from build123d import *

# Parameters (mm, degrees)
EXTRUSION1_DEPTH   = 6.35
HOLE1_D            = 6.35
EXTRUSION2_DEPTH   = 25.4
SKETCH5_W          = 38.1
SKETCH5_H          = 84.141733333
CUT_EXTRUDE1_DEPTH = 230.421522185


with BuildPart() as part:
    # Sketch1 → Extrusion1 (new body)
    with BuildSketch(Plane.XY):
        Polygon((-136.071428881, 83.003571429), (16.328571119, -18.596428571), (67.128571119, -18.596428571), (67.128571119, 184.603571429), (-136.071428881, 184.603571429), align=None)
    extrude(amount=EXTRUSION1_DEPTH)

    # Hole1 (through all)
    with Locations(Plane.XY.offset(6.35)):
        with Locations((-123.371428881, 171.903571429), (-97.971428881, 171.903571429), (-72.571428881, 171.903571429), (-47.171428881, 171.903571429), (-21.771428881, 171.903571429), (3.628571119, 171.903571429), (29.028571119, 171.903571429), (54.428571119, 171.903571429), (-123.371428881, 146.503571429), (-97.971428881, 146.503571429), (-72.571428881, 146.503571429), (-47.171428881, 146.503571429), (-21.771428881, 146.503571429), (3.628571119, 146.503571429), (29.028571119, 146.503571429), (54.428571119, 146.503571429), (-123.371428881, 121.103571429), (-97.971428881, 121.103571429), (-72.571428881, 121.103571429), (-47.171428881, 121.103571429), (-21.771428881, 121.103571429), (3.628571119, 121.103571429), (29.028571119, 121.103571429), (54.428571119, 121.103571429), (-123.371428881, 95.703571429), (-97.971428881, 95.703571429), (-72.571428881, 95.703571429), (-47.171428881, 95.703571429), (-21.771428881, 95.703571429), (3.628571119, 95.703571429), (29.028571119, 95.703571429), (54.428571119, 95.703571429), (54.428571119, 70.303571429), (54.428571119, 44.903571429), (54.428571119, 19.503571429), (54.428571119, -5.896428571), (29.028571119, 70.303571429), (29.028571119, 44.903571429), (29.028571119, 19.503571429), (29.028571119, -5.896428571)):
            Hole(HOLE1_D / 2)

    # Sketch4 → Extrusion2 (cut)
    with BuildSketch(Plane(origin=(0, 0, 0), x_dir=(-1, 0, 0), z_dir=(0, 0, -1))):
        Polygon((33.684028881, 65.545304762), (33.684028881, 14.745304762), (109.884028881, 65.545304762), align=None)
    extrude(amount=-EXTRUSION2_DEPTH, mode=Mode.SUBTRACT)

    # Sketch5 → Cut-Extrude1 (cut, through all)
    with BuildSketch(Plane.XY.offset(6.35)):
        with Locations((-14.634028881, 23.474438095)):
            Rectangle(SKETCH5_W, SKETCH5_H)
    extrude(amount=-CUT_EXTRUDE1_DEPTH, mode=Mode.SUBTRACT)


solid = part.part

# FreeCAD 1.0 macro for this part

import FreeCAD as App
import Part
import Sketcher
Q = App.Units.Quantity


def add_polygon(sketch, points):
    """Adds a closed chain of lines whose ends are joined by coincident constraints."""
    first, n = sketch.GeometryCount, len(points)
    for a, b in zip(points, points[1:] + points[:1]):
        sketch.addGeometry(Part.LineSegment(App.Vector(*a, 0), App.Vector(*b, 0)), False)
    for i in range(n):
        sketch.addConstraint(Sketcher.Constraint("Coincident", first + i, 2, first + (i + 1) % n, 1))

doc = App.newDocument("Part")
params = doc.addObject("Spreadsheet::Sheet", "Params")
for row, (alias, value) in enumerate([
    ("sketch1_width", "2 in"),
    ("sketch1_width2", "8 in"),
    ("sketch1_height", "4 in"),
    ("pad1_length", "0.25 in"),
    ("sketch2_diameter", "0.25 in"),
    ("hole_diameter", "0.25 in"),
    ("sketch3_width", "3 in"),
    ("sketch3_height", "2 in"),
    ("pocket1_length", "1 in"),
    ("sketch4_width", "1.5 in"),
], start=1):
    params.set(f"A{row}", alias)
    params.set(f"B{row}", "=" + value)
    params.setAlias(f"B{row}", alias)

body = doc.addObject("PartDesign::Body", "Body")

# Sketch on XY plane
sketch1 = body.newObject("Sketcher::SketchObject", "Sketch")
sketch1.AttachmentSupport = (doc.getObject("XY_Plane"), [""])
sketch1.MapMode = "FlatFace"
add_polygon(sketch1, [(-136, 83), (16, -19), (67, -19), (67, 185), (-136, 185)])  # lines 0-4
sketch1.addConstraint(Sketcher.Constraint("Horizontal", 1))
sketch1.addConstraint(Sketcher.Constraint("Vertical", 2))
sketch1.addConstraint(Sketcher.Constraint("Horizontal", 3))
sketch1.addConstraint(Sketcher.Constraint("Vertical", 4))
sketch1.addConstraint(Sketcher.Constraint("Equal", 3, 2))
sketch1.addConstraint(Sketcher.Constraint("DistanceX", 1, 1, 1, 2, Q("2 in")))
sketch1.addConstraint(Sketcher.Constraint("DistanceX", 3, 2, 3, 1, Q("8 in")))
sketch1.addConstraint(Sketcher.Constraint("DistanceY", 4, 2, 4, 1, Q("4 in")))
sketch1.addConstraint(Sketcher.Constraint("DistanceX", -1, 1, 0, 2, Q("16.328571 mm")))
sketch1.addConstraint(Sketcher.Constraint("DistanceY", 0, 2, -1, 1, Q("18.596429 mm")))
sketch1.setExpression("Constraints[10]", "Params.sketch1_width")
sketch1.setExpression("Constraints[11]", "Params.sketch1_width2")
sketch1.setExpression("Constraints[12]", "Params.sketch1_height")
pad1 = body.newObject("PartDesign::Pad", "Pad")
pad1.Profile = sketch1
pad1.setExpression("Length", "Params.pad1_length")

# Sketch on XY plane
sketch2 = body.newObject("Sketcher::SketchObject", "Sketch001")
sketch2.AttachmentSupport = (doc.getObject("XY_Plane"), [""])
sketch2.MapMode = "FlatFace"
sketch2.AttachmentOffset = App.Placement(App.Vector(0, 0, 0.25 * 25.4), App.Rotation())
sketch2.addGeometry(Part.Circle(App.Vector(-123.4, 171.9, 0), App.Vector(0, 0, 1), 3.2), False)
sketch2.addGeometry(Part.Circle(App.Vector(-98, 171.9, 0), App.Vector(0, 0, 1), 3.2), False)
sketch2.addGeometry(Part.Circle(App.Vector(-72.6, 171.9, 0), App.Vector(0, 0, 1), 3.2), False)
sketch2.addGeometry(Part.Circle(App.Vector(-47.2, 171.9, 0), App.Vector(0, 0, 1), 3.2), False)
sketch2.addGeometry(Part.Circle(App.Vector(-21.8, 171.9, 0), App.Vector(0, 0, 1), 3.2), False)
sketch2.addGeometry(Part.Circle(App.Vector(3.6, 171.9, 0), App.Vector(0, 0, 1), 3.2), False)
sketch2.addGeometry(Part.Circle(App.Vector(29, 171.9, 0), App.Vector(0, 0, 1), 3.2), False)
sketch2.addGeometry(Part.Circle(App.Vector(54.4, 171.9, 0), App.Vector(0, 0, 1), 3.2), False)
sketch2.addGeometry(Part.Circle(App.Vector(-123.4, 146.5, 0), App.Vector(0, 0, 1), 3.2), False)
sketch2.addGeometry(Part.Circle(App.Vector(-98, 146.5, 0), App.Vector(0, 0, 1), 3.2), False)
sketch2.addGeometry(Part.Circle(App.Vector(-72.6, 146.5, 0), App.Vector(0, 0, 1), 3.2), False)
sketch2.addGeometry(Part.Circle(App.Vector(-47.2, 146.5, 0), App.Vector(0, 0, 1), 3.2), False)
sketch2.addGeometry(Part.Circle(App.Vector(-21.8, 146.5, 0), App.Vector(0, 0, 1), 3.2), False)
sketch2.addGeometry(Part.Circle(App.Vector(3.6, 146.5, 0), App.Vector(0, 0, 1), 3.2), False)
sketch2.addGeometry(Part.Circle(App.Vector(29, 146.5, 0), App.Vector(0, 0, 1), 3.2), False)
sketch2.addGeometry(Part.Circle(App.Vector(54.4, 146.5, 0), App.Vector(0, 0, 1), 3.2), False)
sketch2.addGeometry(Part.Circle(App.Vector(-123.4, 121.1, 0), App.Vector(0, 0, 1), 3.2), False)
sketch2.addGeometry(Part.Circle(App.Vector(-98, 121.1, 0), App.Vector(0, 0, 1), 3.2), False)
sketch2.addGeometry(Part.Circle(App.Vector(-72.6, 121.1, 0), App.Vector(0, 0, 1), 3.2), False)
sketch2.addGeometry(Part.Circle(App.Vector(-47.2, 121.1, 0), App.Vector(0, 0, 1), 3.2), False)
sketch2.addGeometry(Part.Circle(App.Vector(-21.8, 121.1, 0), App.Vector(0, 0, 1), 3.2), False)
sketch2.addGeometry(Part.Circle(App.Vector(3.6, 121.1, 0), App.Vector(0, 0, 1), 3.2), False)
sketch2.addGeometry(Part.Circle(App.Vector(29, 121.1, 0), App.Vector(0, 0, 1), 3.2), False)
sketch2.addGeometry(Part.Circle(App.Vector(54.4, 121.1, 0), App.Vector(0, 0, 1), 3.2), False)
sketch2.addGeometry(Part.Circle(App.Vector(-123.4, 95.7, 0), App.Vector(0, 0, 1), 3.2), False)
sketch2.addGeometry(Part.Circle(App.Vector(-98, 95.7, 0), App.Vector(0, 0, 1), 3.2), False)
sketch2.addGeometry(Part.Circle(App.Vector(-72.6, 95.7, 0), App.Vector(0, 0, 1), 3.2), False)
sketch2.addGeometry(Part.Circle(App.Vector(-47.2, 95.7, 0), App.Vector(0, 0, 1), 3.2), False)
sketch2.addGeometry(Part.Circle(App.Vector(-21.8, 95.7, 0), App.Vector(0, 0, 1), 3.2), False)
sketch2.addGeometry(Part.Circle(App.Vector(3.6, 95.7, 0), App.Vector(0, 0, 1), 3.2), False)
sketch2.addGeometry(Part.Circle(App.Vector(29, 95.7, 0), App.Vector(0, 0, 1), 3.2), False)
sketch2.addGeometry(Part.Circle(App.Vector(54.4, 95.7, 0), App.Vector(0, 0, 1), 3.2), False)
sketch2.addGeometry(Part.Circle(App.Vector(54.4, 70.3, 0), App.Vector(0, 0, 1), 3.2), False)
sketch2.addGeometry(Part.Circle(App.Vector(54.4, 44.9, 0), App.Vector(0, 0, 1), 3.2), False)
sketch2.addGeometry(Part.Circle(App.Vector(54.4, 19.5, 0), App.Vector(0, 0, 1), 3.2), False)
sketch2.addGeometry(Part.Circle(App.Vector(54.4, -5.9, 0), App.Vector(0, 0, 1), 3.2), False)
sketch2.addGeometry(Part.Circle(App.Vector(29, 70.3, 0), App.Vector(0, 0, 1), 3.2), False)
sketch2.addGeometry(Part.Circle(App.Vector(29, 44.9, 0), App.Vector(0, 0, 1), 3.2), False)
sketch2.addGeometry(Part.Circle(App.Vector(29, 19.5, 0), App.Vector(0, 0, 1), 3.2), False)
sketch2.addGeometry(Part.Circle(App.Vector(29, -5.9, 0), App.Vector(0, 0, 1), 3.2), False)
sketch2.addConstraint(Sketcher.Constraint("Equal", 0, 1))
sketch2.addConstraint(Sketcher.Constraint("Equal", 1, 2))
sketch2.addConstraint(Sketcher.Constraint("Equal", 2, 3))
sketch2.addConstraint(Sketcher.Constraint("Equal", 3, 4))
sketch2.addConstraint(Sketcher.Constraint("Equal", 4, 5))
sketch2.addConstraint(Sketcher.Constraint("Equal", 5, 6))
sketch2.addConstraint(Sketcher.Constraint("Equal", 6, 7))
sketch2.addConstraint(Sketcher.Constraint("Equal", 7, 8))
sketch2.addConstraint(Sketcher.Constraint("Equal", 8, 9))
sketch2.addConstraint(Sketcher.Constraint("Equal", 9, 10))
sketch2.addConstraint(Sketcher.Constraint("Equal", 10, 11))
sketch2.addConstraint(Sketcher.Constraint("Equal", 11, 12))
sketch2.addConstraint(Sketcher.Constraint("Equal", 12, 13))
sketch2.addConstraint(Sketcher.Constraint("Equal", 13, 14))
sketch2.addConstraint(Sketcher.Constraint("Equal", 14, 15))
sketch2.addConstraint(Sketcher.Constraint("Equal", 15, 16))
sketch2.addConstraint(Sketcher.Constraint("Equal", 16, 17))
sketch2.addConstraint(Sketcher.Constraint("Equal", 17, 18))
sketch2.addConstraint(Sketcher.Constraint("Equal", 18, 19))
sketch2.addConstraint(Sketcher.Constraint("Equal", 19, 20))
sketch2.addConstraint(Sketcher.Constraint("Equal", 20, 21))
sketch2.addConstraint(Sketcher.Constraint("Equal", 21, 22))
sketch2.addConstraint(Sketcher.Constraint("Equal", 22, 23))
sketch2.addConstraint(Sketcher.Constraint("Equal", 23, 24))
sketch2.addConstraint(Sketcher.Constraint("Equal", 24, 25))
sketch2.addConstraint(Sketcher.Constraint("Equal", 25, 26))
sketch2.addConstraint(Sketcher.Constraint("Equal", 26, 27))
sketch2.addConstraint(Sketcher.Constraint("Equal", 27, 28))
sketch2.addConstraint(Sketcher.Constraint("Equal", 28, 29))
sketch2.addConstraint(Sketcher.Constraint("Equal", 29, 30))
sketch2.addConstraint(Sketcher.Constraint("Equal", 30, 31))
sketch2.addConstraint(Sketcher.Constraint("Equal", 31, 32))
sketch2.addConstraint(Sketcher.Constraint("Equal", 32, 33))
sketch2.addConstraint(Sketcher.Constraint("Equal", 33, 34))
sketch2.addConstraint(Sketcher.Constraint("Equal", 34, 35))
sketch2.addConstraint(Sketcher.Constraint("Equal", 35, 36))
sketch2.addConstraint(Sketcher.Constraint("Equal", 36, 37))
sketch2.addConstraint(Sketcher.Constraint("Equal", 37, 38))
sketch2.addConstraint(Sketcher.Constraint("Equal", 38, 39))
sketch2.addConstraint(Sketcher.Constraint("Horizontal", 0, 3, 1, 3))
sketch2.addConstraint(Sketcher.Constraint("Horizontal", 1, 3, 2, 3))
sketch2.addConstraint(Sketcher.Constraint("Horizontal", 2, 3, 3, 3))
sketch2.addConstraint(Sketcher.Constraint("Horizontal", 3, 3, 4, 3))
sketch2.addConstraint(Sketcher.Constraint("Horizontal", 4, 3, 5, 3))
sketch2.addConstraint(Sketcher.Constraint("Horizontal", 5, 3, 6, 3))
sketch2.addConstraint(Sketcher.Constraint("Horizontal", 6, 3, 7, 3))
sketch2.addConstraint(Sketcher.Constraint("Horizontal", 8, 3, 9, 3))
sketch2.addConstraint(Sketcher.Constraint("Horizontal", 9, 3, 10, 3))
sketch2.addConstraint(Sketcher.Constraint("Horizontal", 10, 3, 11, 3))
sketch2.addConstraint(Sketcher.Constraint("Horizontal", 11, 3, 12, 3))
sketch2.addConstraint(Sketcher.Constraint("Horizontal", 12, 3, 13, 3))
sketch2.addConstraint(Sketcher.Constraint("Horizontal", 13, 3, 14, 3))
sketch2.addConstraint(Sketcher.Constraint("Horizontal", 14, 3, 15, 3))
sketch2.addConstraint(Sketcher.Constraint("Horizontal", 16, 3, 17, 3))
sketch2.addConstraint(Sketcher.Constraint("Horizontal", 17, 3, 18, 3))
sketch2.addConstraint(Sketcher.Constraint("Horizontal", 18, 3, 19, 3))
sketch2.addConstraint(Sketcher.Constraint("Horizontal", 19, 3, 20, 3))
sketch2.addConstraint(Sketcher.Constraint("Horizontal", 20, 3, 21, 3))
sketch2.addConstraint(Sketcher.Constraint("Horizontal", 21, 3, 22, 3))
sketch2.addConstraint(Sketcher.Constraint("Horizontal", 22, 3, 23, 3))
sketch2.addConstraint(Sketcher.Constraint("Horizontal", 24, 3, 25, 3))
sketch2.addConstraint(Sketcher.Constraint("Horizontal", 25, 3, 26, 3))
sketch2.addConstraint(Sketcher.Constraint("Horizontal", 26, 3, 27, 3))
sketch2.addConstraint(Sketcher.Constraint("Horizontal", 27, 3, 28, 3))
sketch2.addConstraint(Sketcher.Constraint("Horizontal", 28, 3, 29, 3))
sketch2.addConstraint(Sketcher.Constraint("Horizontal", 29, 3, 30, 3))
sketch2.addConstraint(Sketcher.Constraint("Horizontal", 30, 3, 31, 3))
sketch2.addConstraint(Sketcher.Constraint("Horizontal", 32, 3, 36, 3))
sketch2.addConstraint(Sketcher.Constraint("Horizontal", 33, 3, 37, 3))
sketch2.addConstraint(Sketcher.Constraint("Horizontal", 34, 3, 38, 3))
sketch2.addConstraint(Sketcher.Constraint("Horizontal", 35, 3, 39, 3))
sketch2.addConstraint(Sketcher.Constraint("Vertical", 0, 3, 8, 3))
sketch2.addConstraint(Sketcher.Constraint("Vertical", 1, 3, 9, 3))
sketch2.addConstraint(Sketcher.Constraint("Vertical", 2, 3, 10, 3))
sketch2.addConstraint(Sketcher.Constraint("Vertical", 3, 3, 11, 3))
sketch2.addConstraint(Sketcher.Constraint("Vertical", 4, 3, 12, 3))
sketch2.addConstraint(Sketcher.Constraint("Vertical", 5, 3, 13, 3))
sketch2.addConstraint(Sketcher.Constraint("Vertical", 6, 3, 14, 3))
sketch2.addConstraint(Sketcher.Constraint("Vertical", 7, 3, 15, 3))
sketch2.addConstraint(Sketcher.Constraint("Vertical", 8, 3, 16, 3))
sketch2.addConstraint(Sketcher.Constraint("Vertical", 9, 3, 17, 3))
sketch2.addConstraint(Sketcher.Constraint("Vertical", 10, 3, 18, 3))
sketch2.addConstraint(Sketcher.Constraint("Vertical", 11, 3, 19, 3))
sketch2.addConstraint(Sketcher.Constraint("Vertical", 12, 3, 20, 3))
sketch2.addConstraint(Sketcher.Constraint("Vertical", 13, 3, 21, 3))
sketch2.addConstraint(Sketcher.Constraint("Vertical", 14, 3, 22, 3))
sketch2.addConstraint(Sketcher.Constraint("Vertical", 15, 3, 23, 3))
sketch2.addConstraint(Sketcher.Constraint("Vertical", 16, 3, 24, 3))
sketch2.addConstraint(Sketcher.Constraint("Vertical", 17, 3, 25, 3))
sketch2.addConstraint(Sketcher.Constraint("Vertical", 18, 3, 26, 3))
sketch2.addConstraint(Sketcher.Constraint("Vertical", 19, 3, 27, 3))
sketch2.addConstraint(Sketcher.Constraint("Vertical", 20, 3, 28, 3))
sketch2.addConstraint(Sketcher.Constraint("Vertical", 21, 3, 29, 3))
sketch2.addConstraint(Sketcher.Constraint("Vertical", 22, 3, 30, 3))
sketch2.addConstraint(Sketcher.Constraint("Vertical", 23, 3, 31, 3))
sketch2.addConstraint(Sketcher.Constraint("Vertical", 31, 3, 32, 3))
sketch2.addConstraint(Sketcher.Constraint("Vertical", 32, 3, 33, 3))
sketch2.addConstraint(Sketcher.Constraint("Vertical", 33, 3, 34, 3))
sketch2.addConstraint(Sketcher.Constraint("Vertical", 34, 3, 35, 3))
sketch2.addConstraint(Sketcher.Constraint("Vertical", 30, 3, 36, 3))
sketch2.addConstraint(Sketcher.Constraint("Vertical", 36, 3, 37, 3))
sketch2.addConstraint(Sketcher.Constraint("Vertical", 37, 3, 38, 3))
sketch2.addConstraint(Sketcher.Constraint("Vertical", 38, 3, 39, 3))
sketch2.addConstraint(Sketcher.Constraint("Diameter", 0, Q("0.25 in")))
sketch2.addConstraint(Sketcher.Constraint("DistanceX", 0, 3, 1, 3, Q("1 in")))
sketch2.addConstraint(Sketcher.Constraint("DistanceX", 1, 3, 2, 3, Q("1 in")))
sketch2.addConstraint(Sketcher.Constraint("DistanceX", 2, 3, 3, 3, Q("1 in")))
sketch2.addConstraint(Sketcher.Constraint("DistanceX", 3, 3, 4, 3, Q("1 in")))
sketch2.addConstraint(Sketcher.Constraint("DistanceX", 4, 3, 5, 3, Q("1 in")))
sketch2.addConstraint(Sketcher.Constraint("DistanceX", 5, 3, 6, 3, Q("1 in")))
sketch2.addConstraint(Sketcher.Constraint("DistanceX", 6, 3, 7, 3, Q("1 in")))
sketch2.addConstraint(Sketcher.Constraint("DistanceY", 8, 3, 0, 3, Q("1 in")))
sketch2.addConstraint(Sketcher.Constraint("DistanceY", 16, 3, 8, 3, Q("1 in")))
sketch2.addConstraint(Sketcher.Constraint("DistanceY", 24, 3, 16, 3, Q("1 in")))
sketch2.addConstraint(Sketcher.Constraint("DistanceY", 32, 3, 31, 3, Q("1 in")))
sketch2.addConstraint(Sketcher.Constraint("DistanceY", 33, 3, 32, 3, Q("1 in")))
sketch2.addConstraint(Sketcher.Constraint("DistanceY", 34, 3, 33, 3, Q("1 in")))
sketch2.addConstraint(Sketcher.Constraint("DistanceY", 35, 3, 34, 3, Q("1 in")))
sketch2.addConstraint(Sketcher.Constraint("DistanceX", 0, 3, -1, 1, Q("123.371429 mm")))
sketch2.addConstraint(Sketcher.Constraint("DistanceY", -1, 1, 0, 3, Q("171.903571 mm")))
sketch2.setExpression("Constraints[103]", "Params.sketch2_diameter")
doc.recompute()
hole = body.newObject("PartDesign::Hole", "Hole")
hole.Profile = sketch2
hole.ThreadType = "None"
hole.setExpression("Diameter", "Params.hole_diameter")
hole.DepthType = "ThroughAll"

# Sketch on XY plane
sketch3 = body.newObject("Sketcher::SketchObject", "Sketch002")
sketch3.AttachmentSupport = (doc.getObject("XY_Plane"), [""])
sketch3.MapMode = "FlatFace"
add_polygon(sketch3, [(-34, 66), (-34, 15), (-110, 66)])  # lines 0-2
sketch3.addConstraint(Sketcher.Constraint("Vertical", 0))
sketch3.addConstraint(Sketcher.Constraint("Horizontal", 2))
sketch3.addConstraint(Sketcher.Constraint("DistanceX", 2, 1, 2, 2, Q("3 in")))
sketch3.addConstraint(Sketcher.Constraint("DistanceY", 0, 2, 0, 1, Q("2 in")))
sketch3.addConstraint(Sketcher.Constraint("DistanceX", 0, 2, -1, 1, Q("33.684029 mm")))
sketch3.addConstraint(Sketcher.Constraint("DistanceY", -1, 1, 0, 2, Q("14.745305 mm")))
sketch3.setExpression("Constraints[5]", "Params.sketch3_width")
sketch3.setExpression("Constraints[6]", "Params.sketch3_height")
pocket1 = body.newObject("PartDesign::Pocket", "Pocket")
pocket1.Profile = sketch3
pocket1.setExpression("Length", "Params.pocket1_length")
pocket1.Reversed = True

# Sketch on XY plane
sketch4 = body.newObject("Sketcher::SketchObject", "Sketch003")
sketch4.AttachmentSupport = (doc.getObject("XY_Plane"), [""])
sketch4.MapMode = "FlatFace"
sketch4.AttachmentOffset = App.Placement(App.Vector(0, 0, 0.25 * 25.4), App.Rotation())
add_polygon(sketch4, [(-34, 66), (-34, -19), (4, -19), (4, 66)])  # lines 0-3
sketch4.addConstraint(Sketcher.Constraint("Vertical", 0))
sketch4.addConstraint(Sketcher.Constraint("Horizontal", 1))
sketch4.addConstraint(Sketcher.Constraint("Vertical", 2))
sketch4.addConstraint(Sketcher.Constraint("Horizontal", 3))
sketch4.addConstraint(Sketcher.Constraint("DistanceX", 1, 1, 1, 2, Q("1.5 in")))
sketch4.addConstraint(Sketcher.Constraint("DistanceY", 0, 2, 0, 1, Q("84.141733 mm")))
sketch4.addConstraint(Sketcher.Constraint("DistanceX", 0, 2, -1, 1, Q("33.684029 mm")))
sketch4.addConstraint(Sketcher.Constraint("DistanceY", 0, 2, -1, 1, Q("18.596429 mm")))
sketch4.setExpression("Constraints[8]", "Params.sketch4_width")
pocket2 = body.newObject("PartDesign::Pocket", "Pocket001")
pocket2.Profile = sketch4
pocket2.Type = "ThroughAll"

doc.recompute()
